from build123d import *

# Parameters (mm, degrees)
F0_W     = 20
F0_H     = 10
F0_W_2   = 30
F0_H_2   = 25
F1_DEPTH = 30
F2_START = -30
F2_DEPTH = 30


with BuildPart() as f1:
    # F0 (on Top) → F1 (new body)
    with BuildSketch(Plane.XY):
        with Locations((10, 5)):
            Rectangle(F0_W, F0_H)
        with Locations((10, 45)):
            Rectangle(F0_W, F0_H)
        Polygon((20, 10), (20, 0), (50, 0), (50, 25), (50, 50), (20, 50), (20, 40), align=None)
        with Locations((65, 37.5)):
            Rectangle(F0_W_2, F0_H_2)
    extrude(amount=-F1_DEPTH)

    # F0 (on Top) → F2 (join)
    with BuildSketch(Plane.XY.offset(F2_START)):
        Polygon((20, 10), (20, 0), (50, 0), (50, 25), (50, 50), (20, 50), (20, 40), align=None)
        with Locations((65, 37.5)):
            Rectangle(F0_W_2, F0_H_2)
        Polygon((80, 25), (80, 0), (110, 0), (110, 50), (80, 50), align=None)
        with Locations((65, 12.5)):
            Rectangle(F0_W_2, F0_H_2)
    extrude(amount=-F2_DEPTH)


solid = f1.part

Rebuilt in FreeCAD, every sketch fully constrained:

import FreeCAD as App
import Part
import Sketcher
Q = App.Units.Quantity

doc = App.newDocument("Part")
params = doc.addObject("Spreadsheet::Sheet", "Params")
for row, (alias, value) in enumerate([
    ("sketch1_width", "50 mm"),
    ("sketch1_width2", "30 mm"),
    ("sketch1_width3", "20 mm"),
    ("sketch1_height", "10 mm"),
    ("pad1_length", "30 mm"),
    ("sketch2_width", "90 mm"),
    ("sketch2_height", "50 mm"),
    ("pad2_length", "30 mm"),
], start=1):
    params.set(f"A{row}", alias)
    params.set(f"B{row}", "=" + value)
    params.setAlias(f"B{row}", alias)

body = doc.addObject("PartDesign::Body", "Body")

sketch1 = doc.addObject("Sketcher::SketchObject", "Sketch")
body.addObject(sketch1)
sketch1.AttachmentSupport = (doc.XY_Plane, [""])
sketch1.MapMode = "FlatFace"
sketch1.addGeometry(Part.LineSegment(App.Vector(0, 10, 0), App.Vector(0, 0, 0)), False)
sketch1.addGeometry(Part.LineSegment(App.Vector(0, 0, 0), App.Vector(50, 0, 0)), False)
sketch1.addGeometry(Part.LineSegment(App.Vector(50, 0, 0), App.Vector(50, 25, 0)), False)
sketch1.addGeometry(Part.LineSegment(App.Vector(50, 25, 0), App.Vector(80, 25, 0)), False)
sketch1.addGeometry(Part.LineSegment(App.Vector(80, 25, 0), App.Vector(80, 50, 0)), False)
sketch1.addGeometry(Part.LineSegment(App.Vector(80, 50, 0), App.Vector(0, 50, 0)), False)
sketch1.addGeometry(Part.LineSegment(App.Vector(0, 50, 0), App.Vector(0, 40, 0)), False)
sketch1.addGeometry(Part.LineSegment(App.Vector(0, 40, 0), App.Vector(20, 40, 0)), False)
sketch1.addGeometry(Part.LineSegment(App.Vector(20, 40, 0), App.Vector(20, 10, 0)), False)
sketch1.addGeometry(Part.LineSegment(App.Vector(20, 10, 0), App.Vector(0, 10, 0)), False)
sketch1.addConstraint(Sketcher.Constraint("Coincident", 0, 2, 1, 1))
sketch1.addConstraint(Sketcher.Constraint("Coincident", 1, 2, 2, 1))
sketch1.addConstraint(Sketcher.Constraint("Coincident", 2, 2, 3, 1))
sketch1.addConstraint(Sketcher.Constraint("Coincident", 3, 2, 4, 1))
sketch1.addConstraint(Sketcher.Constraint("Coincident", 4, 2, 5, 1))
sketch1.addConstraint(Sketcher.Constraint("Coincident", 5, 2, 6, 1))
sketch1.addConstraint(Sketcher.Constraint("Coincident", 6, 2, 7, 1))
sketch1.addConstraint(Sketcher.Constraint("Coincident", 7, 2, 8, 1))
sketch1.addConstraint(Sketcher.Constraint("Coincident", 8, 2, 9, 1))
sketch1.addConstraint(Sketcher.Constraint("Coincident", 9, 2, 0, 1))
sketch1.addConstraint(Sketcher.Constraint("Vertical", 0))
sketch1.addConstraint(Sketcher.Constraint("Horizontal", 1))
sketch1.addConstraint(Sketcher.Constraint("Vertical", 2))
sketch1.addConstraint(Sketcher.Constraint("Horizontal", 3))
sketch1.addConstraint(Sketcher.Constraint("Vertical", 4))
sketch1.addConstraint(Sketcher.Constraint("Horizontal", 5))
sketch1.addConstraint(Sketcher.Constraint("Vertical", 6))
sketch1.addConstraint(Sketcher.Constraint("Horizontal", 7))
sketch1.addConstraint(Sketcher.Constraint("Vertical", 8))
sketch1.addConstraint(Sketcher.Constraint("Horizontal", 9))
sketch1.addConstraint(Sketcher.Constraint("Coincident", 0, 2, -1, 1))
sketch1.addConstraint(Sketcher.Constraint("PointOnObject", 5, 2, -2))
sketch1.addConstraint(Sketcher.Constraint("Equal", 2, 4))
sketch1.addConstraint(Sketcher.Constraint("Equal", 0, 6))
sketch1.addConstraint(Sketcher.Constraint("Equal", 3, 8))
sketch1.addConstraint(Sketcher.Constraint("DistanceX", 1, 1, 1, 2, Q("50 mm")))
sketch1.addConstraint(Sketcher.Constraint("DistanceX", 3, 1, 3, 2, Q("30 mm")))
sketch1.addConstraint(Sketcher.Constraint("DistanceX", 7, 1, 7, 2, Q("20 mm")))
sketch1.addConstraint(Sketcher.Constraint("DistanceY", 0, 2, 0, 1, Q("10 mm")))
sketch1.setExpression("Constraints[25]", "Params.sketch1_width")
sketch1.setExpression("Constraints[26]", "Params.sketch1_width2")
sketch1.setExpression("Constraints[27]", "Params.sketch1_width3")
sketch1.setExpression("Constraints[28]", "Params.sketch1_height")
pad1 = doc.addObject("PartDesign::Pad", "Pad")
body.addObject(pad1)
pad1.Profile = sketch1
pad1.setExpression("Length", "Params.pad1_length")
pad1.Reversed = True

sketch2 = doc.addObject("Sketcher::SketchObject", "Sketch001")
body.addObject(sketch2)
sketch2.AttachmentSupport = (doc.XY_Plane, [""])
sketch2.MapMode = "FlatFace"
sketch2.AttachmentOffset = App.Placement(App.Vector(0, 0, -30), App.Rotation())
sketch2.addGeometry(Part.LineSegment(App.Vector(20, 0, 0), App.Vector(110, 0, 0)), False)
sketch2.addGeometry(Part.LineSegment(App.Vector(110, 0, 0), App.Vector(110, 50, 0)), False)
sketch2.addGeometry(Part.LineSegment(App.Vector(110, 50, 0), App.Vector(20, 50, 0)), False)
sketch2.addGeometry(Part.LineSegment(App.Vector(20, 50, 0), App.Vector(20, 0, 0)), False)
sketch2.addConstraint(Sketcher.Constraint("Coincident", 0, 2, 1, 1))
sketch2.addConstraint(Sketcher.Constraint("Coincident", 1, 2, 2, 1))
sketch2.addConstraint(Sketcher.Constraint("Coincident", 2, 2, 3, 1))
sketch2.addConstraint(Sketcher.Constraint("Coincident", 3, 2, 0, 1))
sketch2.addConstraint(Sketcher.Constraint("Horizontal", 0))
sketch2.addConstraint(Sketcher.Constraint("Vertical", 1))
sketch2.addConstraint(Sketcher.Constraint("Horizontal", 2))
sketch2.addConstraint(Sketcher.Constraint("Vertical", 3))
sketch2.addConstraint(Sketcher.Constraint("PointOnObject", 0, 2, -1))
sketch2.addConstraint(Sketcher.Constraint("DistanceX", 0, 1, 0, 2, Q("90 mm")))
sketch2.addConstraint(Sketcher.Constraint("DistanceY", 1, 1, 1, 2, Q("50 mm")))
sketch2.addConstraint(Sketcher.Constraint("DistanceX", -1, 1, 0, 2, Q("110 mm")))
sketch2.setExpression("Constraints[9]", "Params.sketch2_width")
sketch2.setExpression("Constraints[10]", "Params.sketch2_height")
pad2 = doc.addObject("PartDesign::Pad", "Pad001")
body.addObject(pad2)
pad2.Profile = sketch2
pad2.setExpression("Length", "Params.pad2_length")
pad2.Reversed = True

doc.recompute()
